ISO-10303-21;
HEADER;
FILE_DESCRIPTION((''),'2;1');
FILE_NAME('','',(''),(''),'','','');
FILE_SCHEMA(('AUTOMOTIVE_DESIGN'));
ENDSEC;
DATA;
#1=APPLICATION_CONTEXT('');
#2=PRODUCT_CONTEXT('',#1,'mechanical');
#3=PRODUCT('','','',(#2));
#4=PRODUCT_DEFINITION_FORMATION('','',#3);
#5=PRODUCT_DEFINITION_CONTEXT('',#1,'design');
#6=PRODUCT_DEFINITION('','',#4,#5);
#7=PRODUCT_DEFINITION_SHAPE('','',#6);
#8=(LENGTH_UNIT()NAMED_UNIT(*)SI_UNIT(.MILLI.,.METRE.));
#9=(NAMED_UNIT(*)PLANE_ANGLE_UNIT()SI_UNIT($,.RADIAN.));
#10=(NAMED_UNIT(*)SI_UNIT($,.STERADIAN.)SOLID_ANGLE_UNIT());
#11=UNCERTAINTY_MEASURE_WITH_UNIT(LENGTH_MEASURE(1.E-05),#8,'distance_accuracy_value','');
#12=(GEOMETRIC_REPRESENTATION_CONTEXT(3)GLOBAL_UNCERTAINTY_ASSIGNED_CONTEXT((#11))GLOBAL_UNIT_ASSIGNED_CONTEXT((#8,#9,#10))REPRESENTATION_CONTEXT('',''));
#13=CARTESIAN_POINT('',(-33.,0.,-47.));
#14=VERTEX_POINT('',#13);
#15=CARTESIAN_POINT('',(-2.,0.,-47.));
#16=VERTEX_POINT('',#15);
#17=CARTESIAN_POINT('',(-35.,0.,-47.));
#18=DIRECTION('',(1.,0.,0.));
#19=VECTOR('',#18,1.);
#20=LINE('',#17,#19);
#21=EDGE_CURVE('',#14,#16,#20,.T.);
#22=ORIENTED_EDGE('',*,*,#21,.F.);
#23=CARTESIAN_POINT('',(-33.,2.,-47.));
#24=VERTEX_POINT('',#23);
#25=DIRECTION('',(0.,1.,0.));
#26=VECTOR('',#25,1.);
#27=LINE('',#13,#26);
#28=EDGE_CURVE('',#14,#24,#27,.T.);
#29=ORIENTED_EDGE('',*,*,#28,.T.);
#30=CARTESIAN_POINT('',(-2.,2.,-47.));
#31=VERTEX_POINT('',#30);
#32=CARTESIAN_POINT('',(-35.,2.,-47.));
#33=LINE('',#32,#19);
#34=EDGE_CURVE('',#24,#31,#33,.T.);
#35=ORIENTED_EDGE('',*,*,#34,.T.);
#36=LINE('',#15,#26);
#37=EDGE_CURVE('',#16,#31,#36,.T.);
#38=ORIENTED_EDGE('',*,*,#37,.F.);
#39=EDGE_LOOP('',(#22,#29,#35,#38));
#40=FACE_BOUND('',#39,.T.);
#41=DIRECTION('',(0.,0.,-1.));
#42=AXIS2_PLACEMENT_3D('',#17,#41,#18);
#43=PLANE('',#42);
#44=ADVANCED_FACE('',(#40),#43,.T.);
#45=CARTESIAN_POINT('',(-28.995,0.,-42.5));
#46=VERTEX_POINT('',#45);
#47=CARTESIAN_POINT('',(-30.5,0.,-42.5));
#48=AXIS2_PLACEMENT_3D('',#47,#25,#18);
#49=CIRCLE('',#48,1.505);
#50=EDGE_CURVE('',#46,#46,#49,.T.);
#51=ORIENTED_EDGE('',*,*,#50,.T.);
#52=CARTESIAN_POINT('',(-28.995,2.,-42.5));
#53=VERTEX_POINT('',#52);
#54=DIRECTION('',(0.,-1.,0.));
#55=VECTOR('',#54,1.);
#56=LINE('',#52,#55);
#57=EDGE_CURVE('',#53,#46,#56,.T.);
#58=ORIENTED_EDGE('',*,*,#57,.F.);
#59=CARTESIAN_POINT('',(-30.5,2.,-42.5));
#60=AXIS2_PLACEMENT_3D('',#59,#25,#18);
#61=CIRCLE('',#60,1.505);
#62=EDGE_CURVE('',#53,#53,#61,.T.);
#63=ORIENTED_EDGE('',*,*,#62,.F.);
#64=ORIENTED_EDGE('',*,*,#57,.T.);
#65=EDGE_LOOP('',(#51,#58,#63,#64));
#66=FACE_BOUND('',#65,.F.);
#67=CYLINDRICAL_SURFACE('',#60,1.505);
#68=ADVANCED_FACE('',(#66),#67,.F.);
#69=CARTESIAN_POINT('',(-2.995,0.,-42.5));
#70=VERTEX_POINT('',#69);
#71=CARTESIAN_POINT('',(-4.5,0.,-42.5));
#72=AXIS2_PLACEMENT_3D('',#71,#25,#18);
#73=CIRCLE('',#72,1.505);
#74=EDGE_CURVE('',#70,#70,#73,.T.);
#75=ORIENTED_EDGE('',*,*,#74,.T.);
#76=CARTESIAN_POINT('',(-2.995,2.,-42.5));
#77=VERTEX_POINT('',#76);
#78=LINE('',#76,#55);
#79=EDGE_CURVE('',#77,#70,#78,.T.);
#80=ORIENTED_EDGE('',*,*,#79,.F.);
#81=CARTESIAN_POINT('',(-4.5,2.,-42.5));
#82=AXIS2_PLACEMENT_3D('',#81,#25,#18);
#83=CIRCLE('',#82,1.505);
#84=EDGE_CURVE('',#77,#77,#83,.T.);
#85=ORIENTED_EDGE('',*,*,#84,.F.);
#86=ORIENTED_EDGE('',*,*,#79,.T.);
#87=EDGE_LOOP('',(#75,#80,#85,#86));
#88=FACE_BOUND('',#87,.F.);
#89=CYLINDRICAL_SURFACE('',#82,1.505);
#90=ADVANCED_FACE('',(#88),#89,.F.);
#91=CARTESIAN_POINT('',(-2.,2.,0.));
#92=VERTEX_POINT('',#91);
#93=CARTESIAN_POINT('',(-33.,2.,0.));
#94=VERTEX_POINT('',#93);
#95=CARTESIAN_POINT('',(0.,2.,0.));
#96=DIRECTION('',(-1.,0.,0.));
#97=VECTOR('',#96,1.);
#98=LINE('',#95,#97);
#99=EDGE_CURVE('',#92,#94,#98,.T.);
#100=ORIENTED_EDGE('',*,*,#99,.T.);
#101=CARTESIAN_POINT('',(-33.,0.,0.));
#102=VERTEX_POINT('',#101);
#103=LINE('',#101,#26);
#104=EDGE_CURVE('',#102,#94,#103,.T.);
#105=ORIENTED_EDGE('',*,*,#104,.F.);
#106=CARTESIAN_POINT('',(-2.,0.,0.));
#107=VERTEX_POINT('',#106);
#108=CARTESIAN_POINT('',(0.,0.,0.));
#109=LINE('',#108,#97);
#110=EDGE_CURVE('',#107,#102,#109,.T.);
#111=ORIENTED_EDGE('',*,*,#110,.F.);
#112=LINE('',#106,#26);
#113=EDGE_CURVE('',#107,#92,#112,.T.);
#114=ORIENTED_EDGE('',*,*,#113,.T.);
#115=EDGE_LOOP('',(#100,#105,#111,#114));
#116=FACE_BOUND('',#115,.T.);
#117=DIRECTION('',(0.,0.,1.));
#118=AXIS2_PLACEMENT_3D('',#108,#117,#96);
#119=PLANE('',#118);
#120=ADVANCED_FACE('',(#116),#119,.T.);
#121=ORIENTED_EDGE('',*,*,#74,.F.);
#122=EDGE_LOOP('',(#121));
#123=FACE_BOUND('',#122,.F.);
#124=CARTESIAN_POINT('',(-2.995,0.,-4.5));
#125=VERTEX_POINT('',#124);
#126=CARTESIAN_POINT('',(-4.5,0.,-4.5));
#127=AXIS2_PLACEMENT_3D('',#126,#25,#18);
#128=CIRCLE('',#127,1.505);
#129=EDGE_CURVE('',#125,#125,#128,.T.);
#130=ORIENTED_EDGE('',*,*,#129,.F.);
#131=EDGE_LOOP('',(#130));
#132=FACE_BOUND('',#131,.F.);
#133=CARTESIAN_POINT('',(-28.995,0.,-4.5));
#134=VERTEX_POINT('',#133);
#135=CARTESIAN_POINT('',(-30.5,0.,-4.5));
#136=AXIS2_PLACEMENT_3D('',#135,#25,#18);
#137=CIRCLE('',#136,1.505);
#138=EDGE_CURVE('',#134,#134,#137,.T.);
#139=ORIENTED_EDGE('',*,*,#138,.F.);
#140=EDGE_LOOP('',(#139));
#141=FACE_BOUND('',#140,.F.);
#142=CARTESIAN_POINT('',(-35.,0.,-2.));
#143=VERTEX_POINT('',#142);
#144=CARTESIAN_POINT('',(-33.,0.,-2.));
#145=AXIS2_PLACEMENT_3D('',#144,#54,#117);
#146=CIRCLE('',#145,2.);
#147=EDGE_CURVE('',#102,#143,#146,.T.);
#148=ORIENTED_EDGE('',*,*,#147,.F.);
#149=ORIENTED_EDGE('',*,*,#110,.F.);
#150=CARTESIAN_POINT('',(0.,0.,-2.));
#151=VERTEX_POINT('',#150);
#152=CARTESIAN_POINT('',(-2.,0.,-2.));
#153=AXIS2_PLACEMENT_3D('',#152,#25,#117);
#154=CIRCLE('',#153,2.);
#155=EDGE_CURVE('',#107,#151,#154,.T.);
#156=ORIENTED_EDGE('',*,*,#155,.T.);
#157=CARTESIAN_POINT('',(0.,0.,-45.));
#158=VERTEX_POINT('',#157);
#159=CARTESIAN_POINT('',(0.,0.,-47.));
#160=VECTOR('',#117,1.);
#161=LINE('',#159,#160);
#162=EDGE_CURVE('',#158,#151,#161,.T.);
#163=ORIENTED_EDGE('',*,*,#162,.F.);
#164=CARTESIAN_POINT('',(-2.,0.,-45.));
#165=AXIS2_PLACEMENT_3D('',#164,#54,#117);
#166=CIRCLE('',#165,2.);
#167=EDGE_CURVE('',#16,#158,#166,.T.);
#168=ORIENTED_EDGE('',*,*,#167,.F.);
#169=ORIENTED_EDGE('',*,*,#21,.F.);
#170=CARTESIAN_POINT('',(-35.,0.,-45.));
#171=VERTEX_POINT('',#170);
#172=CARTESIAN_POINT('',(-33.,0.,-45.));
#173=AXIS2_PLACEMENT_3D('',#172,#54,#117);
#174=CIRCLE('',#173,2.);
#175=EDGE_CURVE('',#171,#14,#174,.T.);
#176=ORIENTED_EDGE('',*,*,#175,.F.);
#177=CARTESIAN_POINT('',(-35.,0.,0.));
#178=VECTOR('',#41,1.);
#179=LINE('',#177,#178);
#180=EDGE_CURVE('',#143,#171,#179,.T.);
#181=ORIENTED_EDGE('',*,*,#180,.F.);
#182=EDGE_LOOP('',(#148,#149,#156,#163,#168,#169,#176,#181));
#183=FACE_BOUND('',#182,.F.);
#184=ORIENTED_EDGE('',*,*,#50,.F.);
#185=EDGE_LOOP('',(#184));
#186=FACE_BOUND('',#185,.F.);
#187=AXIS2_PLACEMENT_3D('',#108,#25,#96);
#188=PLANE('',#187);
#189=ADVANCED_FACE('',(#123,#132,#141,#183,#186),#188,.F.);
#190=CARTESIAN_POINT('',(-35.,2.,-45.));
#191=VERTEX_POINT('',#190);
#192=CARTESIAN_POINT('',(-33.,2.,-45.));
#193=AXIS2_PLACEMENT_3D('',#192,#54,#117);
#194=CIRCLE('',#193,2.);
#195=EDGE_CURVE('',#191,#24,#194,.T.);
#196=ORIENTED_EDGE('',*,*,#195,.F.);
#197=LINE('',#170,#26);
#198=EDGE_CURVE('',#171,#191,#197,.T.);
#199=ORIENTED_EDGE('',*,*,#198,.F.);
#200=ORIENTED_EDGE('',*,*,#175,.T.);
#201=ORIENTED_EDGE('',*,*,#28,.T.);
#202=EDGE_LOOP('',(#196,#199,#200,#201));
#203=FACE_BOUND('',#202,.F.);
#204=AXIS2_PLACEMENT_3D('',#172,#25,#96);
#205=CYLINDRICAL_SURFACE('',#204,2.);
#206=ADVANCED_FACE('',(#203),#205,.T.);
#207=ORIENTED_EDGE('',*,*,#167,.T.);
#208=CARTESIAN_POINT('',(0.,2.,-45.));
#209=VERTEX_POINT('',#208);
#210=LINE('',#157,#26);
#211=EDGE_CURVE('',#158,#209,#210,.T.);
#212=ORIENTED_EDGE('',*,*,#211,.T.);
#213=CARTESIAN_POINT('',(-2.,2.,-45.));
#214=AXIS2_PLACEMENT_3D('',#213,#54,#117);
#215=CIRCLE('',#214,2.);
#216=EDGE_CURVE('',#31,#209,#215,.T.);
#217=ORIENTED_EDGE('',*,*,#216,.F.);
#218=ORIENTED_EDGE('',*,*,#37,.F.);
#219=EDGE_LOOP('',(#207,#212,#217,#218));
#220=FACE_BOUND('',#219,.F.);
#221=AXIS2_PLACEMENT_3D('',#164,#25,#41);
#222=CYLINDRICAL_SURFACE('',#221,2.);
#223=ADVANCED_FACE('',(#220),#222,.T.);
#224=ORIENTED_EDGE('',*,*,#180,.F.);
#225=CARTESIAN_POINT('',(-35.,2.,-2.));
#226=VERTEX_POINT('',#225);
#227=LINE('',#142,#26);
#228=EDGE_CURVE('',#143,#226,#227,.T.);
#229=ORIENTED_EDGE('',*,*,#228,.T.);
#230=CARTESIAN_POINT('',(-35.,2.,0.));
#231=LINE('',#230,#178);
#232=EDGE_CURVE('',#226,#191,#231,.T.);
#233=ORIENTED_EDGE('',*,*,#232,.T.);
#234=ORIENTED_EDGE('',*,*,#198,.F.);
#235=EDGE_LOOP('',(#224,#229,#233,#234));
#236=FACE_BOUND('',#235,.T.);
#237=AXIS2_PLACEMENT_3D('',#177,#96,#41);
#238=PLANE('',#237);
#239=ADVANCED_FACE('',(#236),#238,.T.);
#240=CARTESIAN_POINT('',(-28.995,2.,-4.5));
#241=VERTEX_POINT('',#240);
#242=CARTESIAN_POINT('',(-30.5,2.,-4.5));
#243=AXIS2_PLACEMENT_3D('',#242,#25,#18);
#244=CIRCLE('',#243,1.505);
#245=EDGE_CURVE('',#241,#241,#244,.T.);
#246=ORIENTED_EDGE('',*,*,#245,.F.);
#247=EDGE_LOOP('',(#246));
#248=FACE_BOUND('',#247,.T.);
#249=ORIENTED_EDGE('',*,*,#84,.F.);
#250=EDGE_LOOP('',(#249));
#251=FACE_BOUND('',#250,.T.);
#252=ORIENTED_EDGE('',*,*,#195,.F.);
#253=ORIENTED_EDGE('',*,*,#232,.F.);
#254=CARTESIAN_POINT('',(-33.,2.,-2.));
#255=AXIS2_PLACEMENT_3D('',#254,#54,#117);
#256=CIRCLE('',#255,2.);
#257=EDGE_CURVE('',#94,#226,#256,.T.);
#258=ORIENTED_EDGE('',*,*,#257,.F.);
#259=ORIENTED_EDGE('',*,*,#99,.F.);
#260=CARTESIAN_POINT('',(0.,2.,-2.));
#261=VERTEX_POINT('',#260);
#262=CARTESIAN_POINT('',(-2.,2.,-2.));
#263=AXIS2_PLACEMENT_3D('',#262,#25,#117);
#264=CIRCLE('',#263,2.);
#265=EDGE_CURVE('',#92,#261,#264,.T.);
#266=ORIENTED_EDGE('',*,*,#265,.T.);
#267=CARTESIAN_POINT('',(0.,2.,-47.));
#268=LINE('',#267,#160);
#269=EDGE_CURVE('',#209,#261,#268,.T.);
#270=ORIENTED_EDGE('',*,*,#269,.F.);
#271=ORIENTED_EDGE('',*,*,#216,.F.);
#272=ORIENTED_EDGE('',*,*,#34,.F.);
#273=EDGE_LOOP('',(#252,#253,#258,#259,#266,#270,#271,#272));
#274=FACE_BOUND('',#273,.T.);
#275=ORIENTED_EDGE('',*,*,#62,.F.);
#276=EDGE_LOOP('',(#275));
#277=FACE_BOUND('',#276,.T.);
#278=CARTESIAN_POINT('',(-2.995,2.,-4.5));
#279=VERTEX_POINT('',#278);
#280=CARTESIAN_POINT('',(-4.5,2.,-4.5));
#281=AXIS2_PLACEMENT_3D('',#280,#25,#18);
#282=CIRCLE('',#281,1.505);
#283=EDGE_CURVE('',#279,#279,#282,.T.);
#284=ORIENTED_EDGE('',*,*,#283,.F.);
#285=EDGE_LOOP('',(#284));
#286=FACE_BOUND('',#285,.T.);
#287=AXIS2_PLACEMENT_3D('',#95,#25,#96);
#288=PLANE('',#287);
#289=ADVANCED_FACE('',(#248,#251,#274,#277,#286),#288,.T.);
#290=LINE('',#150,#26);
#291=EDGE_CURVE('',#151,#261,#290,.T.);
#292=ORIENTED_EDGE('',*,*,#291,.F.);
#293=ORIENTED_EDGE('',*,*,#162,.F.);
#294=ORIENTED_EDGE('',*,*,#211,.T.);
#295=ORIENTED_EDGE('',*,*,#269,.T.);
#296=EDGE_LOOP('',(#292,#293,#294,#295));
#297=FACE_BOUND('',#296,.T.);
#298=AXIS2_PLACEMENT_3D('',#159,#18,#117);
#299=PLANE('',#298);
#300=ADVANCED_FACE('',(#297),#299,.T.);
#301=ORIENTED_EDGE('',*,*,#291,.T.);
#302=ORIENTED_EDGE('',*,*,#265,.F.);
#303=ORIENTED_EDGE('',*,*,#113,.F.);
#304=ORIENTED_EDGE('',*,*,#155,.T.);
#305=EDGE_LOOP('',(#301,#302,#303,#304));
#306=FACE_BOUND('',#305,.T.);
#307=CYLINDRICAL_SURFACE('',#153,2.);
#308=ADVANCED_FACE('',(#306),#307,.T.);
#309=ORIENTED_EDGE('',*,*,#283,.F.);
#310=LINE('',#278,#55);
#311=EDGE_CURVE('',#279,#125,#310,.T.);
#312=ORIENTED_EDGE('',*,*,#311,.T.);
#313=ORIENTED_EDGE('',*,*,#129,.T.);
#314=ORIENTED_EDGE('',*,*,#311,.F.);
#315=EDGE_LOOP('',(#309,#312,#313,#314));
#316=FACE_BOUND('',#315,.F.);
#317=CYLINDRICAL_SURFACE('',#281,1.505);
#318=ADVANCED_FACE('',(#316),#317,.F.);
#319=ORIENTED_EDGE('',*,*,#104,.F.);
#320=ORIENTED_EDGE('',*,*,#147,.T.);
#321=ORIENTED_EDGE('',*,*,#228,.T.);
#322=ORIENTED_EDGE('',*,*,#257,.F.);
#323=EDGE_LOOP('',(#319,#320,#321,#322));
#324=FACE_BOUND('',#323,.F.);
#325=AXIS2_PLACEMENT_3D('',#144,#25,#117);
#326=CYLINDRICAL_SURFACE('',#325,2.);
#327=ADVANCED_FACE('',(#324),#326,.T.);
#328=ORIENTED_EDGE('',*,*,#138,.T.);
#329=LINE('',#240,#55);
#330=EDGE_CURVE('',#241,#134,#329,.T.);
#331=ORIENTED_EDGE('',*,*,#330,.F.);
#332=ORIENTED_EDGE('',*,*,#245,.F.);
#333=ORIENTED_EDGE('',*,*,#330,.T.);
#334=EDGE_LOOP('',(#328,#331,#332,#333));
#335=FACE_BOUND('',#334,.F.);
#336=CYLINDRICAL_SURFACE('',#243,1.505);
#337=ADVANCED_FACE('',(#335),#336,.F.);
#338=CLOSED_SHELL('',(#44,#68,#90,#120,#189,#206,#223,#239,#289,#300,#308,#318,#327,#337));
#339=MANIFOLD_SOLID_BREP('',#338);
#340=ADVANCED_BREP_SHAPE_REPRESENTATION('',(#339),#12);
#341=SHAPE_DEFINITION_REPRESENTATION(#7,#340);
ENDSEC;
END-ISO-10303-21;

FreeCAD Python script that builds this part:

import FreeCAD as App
import Part
import Sketcher


def edges_at(feature, points):
    """Names of the edges that pass closest to the given points."""
    edges = feature.Shape.Edges
    near = lambda p: min(range(len(edges)), key=lambda i: edges[i].distToShape(Part.Vertex(*p))[0])
    return sorted({f"Edge{near(p) + 1}" for p in points})


def add_polygon(sketch, points):
    """Adds a closed chain of lines whose ends are joined by coincident constraints."""
    first, n = sketch.GeometryCount, len(points)
    for a, b in zip(points, points[1:] + points[:1]):
        sketch.addGeometry(Part.LineSegment(App.Vector(*a, 0), App.Vector(*b, 0)), False)
    for i in range(n):
        sketch.addConstraint(Sketcher.Constraint("Coincident", first + i, 2, first + (i + 1) % n, 1))

doc = App.newDocument("Part")
params = doc.addObject("Spreadsheet::Sheet", "Params")
for row, (alias, value) in enumerate([
    ("sketch1_width", "35 mm"),
    ("sketch1_height", "47 mm"),
    ("pad1_length", "2 mm"),
    ("fillet_radius", "2 mm"),
    ("sketch2_diameter", "3.01 mm"),
    ("pocket1_length", "4.5 mm"),
], start=1):
    params.set(f"A{row}", alias)
    params.set(f"B{row}", "=" + value)
    params.setAlias(f"B{row}", alias)

body = doc.addObject("PartDesign::Body", "Body")

sketch1 = body.newObject("Sketcher::SketchObject", "Sketch")
sketch1.AttachmentSupport = (doc.getObject("XZ_Plane"), [""])
sketch1.MapMode = "FlatFace"
add_polygon(sketch1, [(-35, 0), (0, 0), (0, -47), (-35, -47)])
sketch1.addConstraint([
    Sketcher.Constraint("Horizontal", 0),
    Sketcher.Constraint("Vertical", 1),
    Sketcher.Constraint("Horizontal", 2),
    Sketcher.Constraint("Vertical", 3),
    Sketcher.Constraint("Coincident", 0, 2, -1, 1),
    Sketcher.Constraint("DistanceX", 0, 1, 0, 2, 35.0),
    Sketcher.Constraint("DistanceY", 1, 2, 1, 1, 47.0),
])
sketch1.setExpression("Constraints[9]", "Params.sketch1_width")
sketch1.setExpression("Constraints[10]", "Params.sketch1_height")
pad1 = body.newObject("PartDesign::Pad", "Pad")
pad1.Profile = sketch1
pad1.setExpression("Length", "Params.pad1_length")
pad1.Reversed = True
doc.recompute()

fillet = body.newObject("PartDesign::Fillet", "Fillet")
fillet.Base = (pad1, edges_at(pad1, [
    (0, 1, 0),
    (0, 1, -47),
    (-35, 1, 0),
    (-35, 1, -47),
]))
fillet.setExpression("Radius", "Params.fillet_radius")

sketch2 = body.newObject("Sketcher::SketchObject", "Sketch001")
sketch2.AttachmentSupport = (doc.getObject("XZ_Plane"), [""])
sketch2.MapMode = "FlatFace"
sketch2.AttachmentOffset = App.Placement(App.Vector(0, 0, -2), App.Rotation())
sketch2.addGeometry([
    Part.Circle(App.Vector(-4.5, -42.5, 0), App.Vector(0, 0, 1), 1.5),
    Part.Circle(App.Vector(-30.5, -42.5, 0), App.Vector(0, 0, 1), 1.5),
    Part.Circle(App.Vector(-4.5, -4.5, 0), App.Vector(0, 0, 1), 1.5),
    Part.Circle(App.Vector(-30.5, -4.5, 0), App.Vector(0, 0, 1), 1.5),
], False)
sketch2.addConstraint([
    Sketcher.Constraint("Equal", 0, 1),
    Sketcher.Constraint("Equal", 1, 2),
    Sketcher.Constraint("Equal", 2, 3),
    Sketcher.Constraint("Horizontal", 0, 3, 1, 3),
    Sketcher.Constraint("Horizontal", 2, 3, 3, 3),
    Sketcher.Constraint("Vertical", 0, 3, 2, 3),
    Sketcher.Constraint("Vertical", 1, 3, 3, 3),
    Sketcher.Constraint("Diameter", 0, 3.01),
    Sketcher.Constraint("DistanceX", 1, 3, 0, 3, 26.0),
    Sketcher.Constraint("DistanceY", 0, 3, 2, 3, 38.0),
    Sketcher.Constraint("DistanceX", 0, 3, -1, 1, 4.5),
    Sketcher.Constraint("DistanceY", 2, 3, -1, 1, 4.5),
])
sketch2.setExpression("Constraints[7]", "Params.sketch2_diameter")
pocket1 = body.newObject("PartDesign::Pocket", "Pocket")
pocket1.Profile = sketch2
pocket1.setExpression("Length", "Params.pocket1_length")
pocket1.Reversed = True

doc.recompute()
